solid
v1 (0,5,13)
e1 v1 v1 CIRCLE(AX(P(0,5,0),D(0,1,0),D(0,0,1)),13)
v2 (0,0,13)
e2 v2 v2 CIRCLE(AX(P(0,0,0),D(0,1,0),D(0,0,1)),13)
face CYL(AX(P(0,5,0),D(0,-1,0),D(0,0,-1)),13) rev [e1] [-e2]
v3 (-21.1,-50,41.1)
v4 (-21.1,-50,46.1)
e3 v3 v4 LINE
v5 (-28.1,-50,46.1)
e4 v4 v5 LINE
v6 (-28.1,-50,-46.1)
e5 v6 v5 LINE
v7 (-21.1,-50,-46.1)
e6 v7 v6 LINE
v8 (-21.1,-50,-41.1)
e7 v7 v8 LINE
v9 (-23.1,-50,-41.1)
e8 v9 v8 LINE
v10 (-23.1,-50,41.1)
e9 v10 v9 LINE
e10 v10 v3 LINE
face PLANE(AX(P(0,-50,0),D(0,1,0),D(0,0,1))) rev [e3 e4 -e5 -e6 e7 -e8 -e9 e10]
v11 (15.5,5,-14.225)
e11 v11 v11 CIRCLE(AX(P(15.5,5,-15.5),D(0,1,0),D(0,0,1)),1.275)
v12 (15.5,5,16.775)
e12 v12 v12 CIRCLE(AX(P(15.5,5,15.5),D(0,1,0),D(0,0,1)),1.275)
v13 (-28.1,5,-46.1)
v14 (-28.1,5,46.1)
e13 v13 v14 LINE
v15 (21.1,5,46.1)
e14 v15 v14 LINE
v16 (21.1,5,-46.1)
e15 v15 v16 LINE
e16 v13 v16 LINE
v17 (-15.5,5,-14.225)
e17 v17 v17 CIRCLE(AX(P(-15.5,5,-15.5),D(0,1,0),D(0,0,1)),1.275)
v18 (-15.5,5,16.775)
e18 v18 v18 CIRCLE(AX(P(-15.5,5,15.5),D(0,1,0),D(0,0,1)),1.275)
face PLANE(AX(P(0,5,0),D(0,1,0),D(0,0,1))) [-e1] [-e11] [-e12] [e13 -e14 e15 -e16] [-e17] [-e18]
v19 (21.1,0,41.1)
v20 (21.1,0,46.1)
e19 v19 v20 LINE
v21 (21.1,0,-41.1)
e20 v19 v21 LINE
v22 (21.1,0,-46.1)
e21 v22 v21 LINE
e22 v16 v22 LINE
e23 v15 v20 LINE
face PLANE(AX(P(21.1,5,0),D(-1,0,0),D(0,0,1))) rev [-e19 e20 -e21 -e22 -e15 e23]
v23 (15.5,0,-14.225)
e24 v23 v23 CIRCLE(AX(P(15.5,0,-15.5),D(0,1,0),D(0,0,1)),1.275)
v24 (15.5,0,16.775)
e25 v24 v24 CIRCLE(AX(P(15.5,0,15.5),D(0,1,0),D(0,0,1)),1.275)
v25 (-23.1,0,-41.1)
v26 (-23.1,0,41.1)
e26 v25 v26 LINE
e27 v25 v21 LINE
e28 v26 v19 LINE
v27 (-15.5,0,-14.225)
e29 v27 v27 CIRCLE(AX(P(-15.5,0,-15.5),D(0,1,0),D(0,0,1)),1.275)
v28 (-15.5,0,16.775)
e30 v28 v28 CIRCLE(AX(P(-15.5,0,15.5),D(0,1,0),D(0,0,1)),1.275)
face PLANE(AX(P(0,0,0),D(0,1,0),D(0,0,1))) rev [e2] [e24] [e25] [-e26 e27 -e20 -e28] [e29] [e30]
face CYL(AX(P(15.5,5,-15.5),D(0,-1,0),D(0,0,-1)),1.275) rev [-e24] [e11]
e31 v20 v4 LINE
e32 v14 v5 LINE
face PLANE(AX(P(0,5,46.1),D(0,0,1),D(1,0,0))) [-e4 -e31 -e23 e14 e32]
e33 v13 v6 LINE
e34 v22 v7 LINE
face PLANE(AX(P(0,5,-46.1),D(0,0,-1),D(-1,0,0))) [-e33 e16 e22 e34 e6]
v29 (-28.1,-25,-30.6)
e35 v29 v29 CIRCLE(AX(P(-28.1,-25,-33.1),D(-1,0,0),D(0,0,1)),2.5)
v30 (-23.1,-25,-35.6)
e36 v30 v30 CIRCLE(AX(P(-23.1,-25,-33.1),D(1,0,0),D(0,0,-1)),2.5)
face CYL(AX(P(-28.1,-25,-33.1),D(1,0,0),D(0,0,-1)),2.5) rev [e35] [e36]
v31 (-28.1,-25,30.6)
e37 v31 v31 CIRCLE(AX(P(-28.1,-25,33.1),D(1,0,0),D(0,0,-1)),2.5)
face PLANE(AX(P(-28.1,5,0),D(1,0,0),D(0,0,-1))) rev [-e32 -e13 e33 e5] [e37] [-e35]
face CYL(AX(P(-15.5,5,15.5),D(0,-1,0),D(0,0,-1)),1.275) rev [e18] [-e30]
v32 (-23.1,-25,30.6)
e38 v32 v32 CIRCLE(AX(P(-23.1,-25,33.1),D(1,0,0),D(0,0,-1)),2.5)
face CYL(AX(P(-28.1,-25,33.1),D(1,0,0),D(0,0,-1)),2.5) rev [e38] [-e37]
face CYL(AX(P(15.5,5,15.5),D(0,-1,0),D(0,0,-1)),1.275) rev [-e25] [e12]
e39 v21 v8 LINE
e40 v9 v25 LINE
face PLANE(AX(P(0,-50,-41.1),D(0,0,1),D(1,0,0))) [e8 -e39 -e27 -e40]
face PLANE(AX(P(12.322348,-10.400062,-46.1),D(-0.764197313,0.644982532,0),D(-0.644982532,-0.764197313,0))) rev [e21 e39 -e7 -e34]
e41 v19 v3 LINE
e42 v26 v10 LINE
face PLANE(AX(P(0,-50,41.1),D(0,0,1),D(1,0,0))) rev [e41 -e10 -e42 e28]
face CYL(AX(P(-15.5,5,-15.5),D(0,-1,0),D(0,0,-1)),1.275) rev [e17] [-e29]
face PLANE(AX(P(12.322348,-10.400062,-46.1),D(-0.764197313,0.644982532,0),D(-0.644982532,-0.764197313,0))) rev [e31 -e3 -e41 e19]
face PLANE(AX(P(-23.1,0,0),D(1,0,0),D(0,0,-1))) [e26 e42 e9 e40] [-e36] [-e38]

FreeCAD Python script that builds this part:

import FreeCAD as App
import Part
import Sketcher
from FreeCAD import Vector

doc = App.newDocument("Part")
body = doc.addObject("PartDesign::Body", "Body")

sketch1 = body.newObject("Sketcher::SketchObject", "Sketch")
sketch1.AttachmentSupport = (doc.getObject("XZ_Plane"), [""])
sketch1.MapMode = "FlatFace"
sketch1.addGeometry([
    Part.LineSegment(Vector(21.1, -46.1, 0), Vector(-28.1, -46.1, 0)),
    Part.LineSegment(Vector(-28.1, -46.1, 0), Vector(-28.1, 46.1, 0)),
    Part.LineSegment(Vector(-28.1, 46.1, 0), Vector(21.1, 46.1, 0)),
    Part.LineSegment(Vector(21.1, 46.1, 0), Vector(21.1, -46.1, 0)),
    Part.Circle(Vector(15.5, -15.5, 0), Vector(0, 0, 1), 1.3),
    Part.Circle(Vector(0, 0, 0), Vector(0, 0, 1), 13),
    Part.Circle(Vector(-15.5, -15.5, 0), Vector(0, 0, 1), 1.3),
    Part.Circle(Vector(-15.5, 15.5, 0), Vector(0, 0, 1), 1.3),
    Part.Circle(Vector(15.5, 15.5, 0), Vector(0, 0, 1), 1.3),
], False)
sketch1.addConstraint([
    Sketcher.Constraint("Coincident", 0, 2, 1, 1),
    Sketcher.Constraint("Coincident", 1, 2, 2, 1),
    Sketcher.Constraint("Coincident", 2, 2, 3, 1),
    Sketcher.Constraint("Coincident", 3, 2, 0, 1),
    Sketcher.Constraint("Horizontal", 0),
    Sketcher.Constraint("Vertical", 1),
    Sketcher.Constraint("Horizontal", 2),
    Sketcher.Constraint("Vertical", 3),
    Sketcher.Constraint("Coincident", 5, 3, -1, 1),
    Sketcher.Constraint("Equal", 4, 6),
    Sketcher.Constraint("Equal", 6, 7),
    Sketcher.Constraint("Equal", 7, 8),
    Sketcher.Constraint("Symmetric", 4, 3, 7, 3, -1, 1),
    Sketcher.Constraint("Symmetric", 6, 3, 8, 3, -1, 1),
    Sketcher.Constraint("Symmetric", 4, 3, 6, 3, -2),
    Sketcher.Constraint("Diameter", 5, 26.0),
    Sketcher.Constraint("Diameter", 4, 2.55),
    Sketcher.Constraint("DistanceX", 0, 2, 0, 1, 49.2),
    Sketcher.Constraint("DistanceY", 1, 1, 1, 2, 92.2),
    Sketcher.Constraint("DistanceX", 6, 3, 4, 3, 31.0),
    Sketcher.Constraint("DistanceY", 6, 3, 7, 3, 31.0),
    Sketcher.Constraint("DistanceX", 0, 2, -1, 1, 28.1),
    Sketcher.Constraint("DistanceY", 0, 2, -1, 1, 46.1),
])
pad1 = body.newObject("PartDesign::Pad", "Pad")
pad1.Profile = sketch1
pad1.Length = 5
pad1.Reversed = True

sketch2 = body.newObject("Sketcher::SketchObject", "Sketch001")
sketch2.AttachmentSupport = (doc.getObject("XZ_Plane"), [""])
sketch2.MapMode = "FlatFace"
sketch2.addGeometry([
    Part.LineSegment(Vector(-28, -46, 0), Vector(-28, 46, 0)),
    Part.LineSegment(Vector(-28, 46, 0), Vector(21, 46, 0)),
    Part.LineSegment(Vector(21, 46, 0), Vector(21, 41, 0)),
    Part.LineSegment(Vector(21, 41, 0), Vector(-21, 41, 0)),
    Part.LineSegment(Vector(-21, 41, 0), Vector(-21, -41, 0)),
    Part.LineSegment(Vector(-21, -41, 0), Vector(21, -41, 0)),
    Part.LineSegment(Vector(21, -41, 0), Vector(21, -46, 0)),
    Part.LineSegment(Vector(21, -46, 0), Vector(-28, -46, 0)),
], False)
sketch2.addConstraint([
    Sketcher.Constraint("Coincident", 0, 2, 1, 1),
    Sketcher.Constraint("Coincident", 1, 2, 2, 1),
    Sketcher.Constraint("Coincident", 2, 2, 3, 1),
    Sketcher.Constraint("Coincident", 3, 2, 4, 1),
    Sketcher.Constraint("Coincident", 4, 2, 5, 1),
    Sketcher.Constraint("Coincident", 5, 2, 6, 1),
    Sketcher.Constraint("Coincident", 6, 2, 7, 1),
    Sketcher.Constraint("Coincident", 7, 2, 0, 1),
    Sketcher.Constraint("Vertical", 0),
    Sketcher.Constraint("Horizontal", 1),
    Sketcher.Constraint("Vertical", 2),
    Sketcher.Constraint("Horizontal", 3),
    Sketcher.Constraint("Vertical", 4),
    Sketcher.Constraint("Horizontal", 5),
    Sketcher.Constraint("Vertical", 6),
    Sketcher.Constraint("Horizontal", 7),
    Sketcher.Constraint("Symmetric", 2, 2, 4, 2, -1, 1),
    Sketcher.Constraint("Symmetric", 1, 2, 6, 2, -1),
    Sketcher.Constraint("DistanceY", 2, 2, 2, 1, 5.0),
    Sketcher.Constraint("DistanceX", 1, 1, 1, 2, 49.2),
    Sketcher.Constraint("DistanceX", 3, 2, 3, 1, 42.2),
    Sketcher.Constraint("DistanceY", 0, 1, 0, 2, 92.2),
])
pad2 = body.newObject("PartDesign::Pad", "Pad001")
pad2.Profile = sketch2
pad2.Length = 50

sketch3 = body.newObject("Sketcher::SketchObject", "Sketch002")
sketch3.AttachmentSupport = (doc.getObject("XY_Plane"), [""])
sketch3.MapMode = "FlatFace"
sketch3.AttachmentOffset = App.Placement(Vector(0, 0, 46.1), App.Rotation())
sketch3.addGeometry([
    Part.LineSegment(Vector(21, 0, 0), Vector(-21, -50, 0)),
    Part.LineSegment(Vector(-21, -50, 0), Vector(21, -50, 0)),
    Part.LineSegment(Vector(21, -50, 0), Vector(21, 0, 0)),
], False)
sketch3.addConstraint([
    Sketcher.Constraint("Coincident", 0, 2, 1, 1),
    Sketcher.Constraint("Coincident", 1, 2, 2, 1),
    Sketcher.Constraint("Coincident", 2, 2, 0, 1),
    Sketcher.Constraint("Horizontal", 1),
    Sketcher.Constraint("Vertical", 2),
    Sketcher.Constraint("PointOnObject", 2, 2, -1),
    Sketcher.Constraint("DistanceY", 2, 1, 2, 2, 50.0),
    Sketcher.Constraint("DistanceX", 1, 1, 1, 2, 42.2),
    Sketcher.Constraint("DistanceX", 0, 2, -1, 1, 21.1),
])
pocket1 = body.newObject("PartDesign::Pocket", "Pocket")
pocket1.Profile = sketch3
pocket1.Type = "ThroughAll"

sketch4 = body.newObject("Sketcher::SketchObject", "Sketch003")
sketch4.AttachmentSupport = (doc.getObject("YZ_Plane"), [""])
sketch4.MapMode = "FlatFace"
sketch4.AttachmentOffset = App.Placement(Vector(0, 0, -21.1), App.Rotation())
sketch4.addGeometry([
    Part.Circle(Vector(-25, 33.1, 0), Vector(0, 0, 1), 2.5),
    Part.Circle(Vector(-25, -33.1, 0), Vector(0, 0, 1), 2.5),
], False)
sketch4.addConstraint([
    Sketcher.Constraint("Equal", 0, 1),
    Sketcher.Constraint("Symmetric", 0, 3, 1, 3, -1),
    Sketcher.Constraint("Diameter", 0, 5.0),
    Sketcher.Constraint("DistanceX", 0, 3, -1, 1, 25.0),
    Sketcher.Constraint("DistanceY", -1, 1, 0, 3, 33.1),
])
pocket2 = body.newObject("PartDesign::Pocket", "Pocket001")
pocket2.Profile = sketch4
pocket2.Type = "ThroughAll"

sketch5 = body.newObject("Sketcher::SketchObject", "Sketch004")
sketch5.AttachmentSupport = (doc.getObject("YZ_Plane"), [""])
sketch5.MapMode = "FlatFace"
sketch5.AttachmentOffset = App.Placement(Vector(0, 0, -21.1), App.Rotation())
sketch5.addGeometry([
    Part.LineSegment(Vector(0, 41.1, 0), Vector(-50, 41.1, 0)),
    Part.LineSegment(Vector(-50, 41.1, 0), Vector(-50, -41.1, 0)),
    Part.LineSegment(Vector(-50, -41.1, 0), Vector(0, -41.1, 0)),
    Part.LineSegment(Vector(0, -41.1, 0), Vector(0, 41.1, 0)),
    Part.Circle(Vector(-25, 33.1, 0), Vector(0, 0, 1), 2.5),
    Part.Circle(Vector(-25, -33.1, 0), Vector(0, 0, 1), 2.5),
], False)
sketch5.addConstraint([
    Sketcher.Constraint("Coincident", 0, 2, 1, 1),
    Sketcher.Constraint("Coincident", 1, 2, 2, 1),
    Sketcher.Constraint("Coincident", 2, 2, 3, 1),
    Sketcher.Constraint("Coincident", 3, 2, 0, 1),
    Sketcher.Constraint("Horizontal", 0),
    Sketcher.Constraint("Vertical", 1),
    Sketcher.Constraint("Horizontal", 2),
    Sketcher.Constraint("Vertical", 3),
    Sketcher.Constraint("Equal", 4, 5),
    Sketcher.Constraint("Symmetric", 2, 2, 3, 2, -1, 1),
    Sketcher.Constraint("Symmetric", 4, 3, 5, 3, -1),
    Sketcher.Constraint("Diameter", 4, 5.0),
    Sketcher.Constraint("DistanceX", 0, 2, 0, 1, 50.0),
    Sketcher.Constraint("DistanceY", 1, 2, 1, 1, 82.2),
    Sketcher.Constraint("DistanceX", 4, 3, -1, 1, 25.0),
    Sketcher.Constraint("DistanceY", 4, 3, 0, 2, 8.0),
])
pocket3 = body.newObject("PartDesign::Pocket", "Pocket002")
pocket3.Profile = sketch5
pocket3.Length = 2

doc.recompute()
